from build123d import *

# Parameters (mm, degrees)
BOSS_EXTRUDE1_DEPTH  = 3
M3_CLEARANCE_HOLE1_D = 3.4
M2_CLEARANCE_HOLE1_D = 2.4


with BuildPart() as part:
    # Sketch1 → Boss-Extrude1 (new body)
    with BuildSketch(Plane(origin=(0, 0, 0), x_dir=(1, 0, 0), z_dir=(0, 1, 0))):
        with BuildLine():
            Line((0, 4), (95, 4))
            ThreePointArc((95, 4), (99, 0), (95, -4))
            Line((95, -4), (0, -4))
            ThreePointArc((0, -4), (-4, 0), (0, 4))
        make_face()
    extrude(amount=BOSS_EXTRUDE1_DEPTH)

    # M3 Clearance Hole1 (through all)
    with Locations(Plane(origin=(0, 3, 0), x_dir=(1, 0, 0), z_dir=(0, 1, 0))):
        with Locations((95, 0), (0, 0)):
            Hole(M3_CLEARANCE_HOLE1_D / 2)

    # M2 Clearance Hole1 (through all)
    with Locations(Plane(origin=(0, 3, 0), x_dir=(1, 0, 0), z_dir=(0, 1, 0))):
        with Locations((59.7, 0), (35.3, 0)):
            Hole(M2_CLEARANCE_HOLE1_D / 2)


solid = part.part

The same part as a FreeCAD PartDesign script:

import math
import FreeCAD as App
import Part
import Sketcher
from FreeCAD import Vector

doc = App.newDocument("Part")
params = doc.addObject("Spreadsheet::Sheet", "Params")
for row, (alias, value) in enumerate([
    ("sketch1_radius", "4 mm"),
    ("sketch1_width", "95 mm"),
    ("pad1_length", "3 mm"),
    ("sketch2_diameter", "3.4 mm"),
    ("hole_diameter", "3.4 mm"),
    ("sketch3_diameter", "2.4 mm"),
    ("hole2_diameter", "2.4 mm"),
], start=1):
    params.set(f"A{row}", alias)
    params.set(f"B{row}", "=" + value)
    params.setAlias(f"B{row}", alias)

body = doc.addObject("PartDesign::Body", "Body")

sketch1 = body.newObject("Sketcher::SketchObject", "Sketch")
sketch1.AttachmentSupport = (doc.getObject("XZ_Plane"), [""])
sketch1.MapMode = "FlatFace"
sketch1.addGeometry(Part.LineSegment(Vector(95, -4, 0), Vector(0, -4, 0)), False)
sketch1.addGeometry(Part.ArcOfCircle(Part.Circle(Vector(0, 0, 0), Vector(0, 0, 1), 4), math.radians(90), math.radians(270)), False)
sketch1.addGeometry(Part.LineSegment(Vector(0, 4, 0), Vector(95, 4, 0)), False)
sketch1.addGeometry(Part.ArcOfCircle(Part.Circle(Vector(95, 0, 0), Vector(0, 0, 1), 4), math.radians(-90), math.radians(90)), False)
sketch1.addConstraint(Sketcher.Constraint("Tangent", 0, 2, 1, 2))
sketch1.addConstraint(Sketcher.Constraint("Tangent", 1, 1, 2, 1))
sketch1.addConstraint(Sketcher.Constraint("Tangent", 2, 2, 3, 2))
sketch1.addConstraint(Sketcher.Constraint("Tangent", 3, 1, 0, 1))
sketch1.addConstraint(Sketcher.Constraint("Horizontal", 0))
sketch1.addConstraint(Sketcher.Constraint("Horizontal", 2))
sketch1.addConstraint(Sketcher.Constraint("Coincident", 1, 3, -1, 1))
sketch1.addConstraint(Sketcher.Constraint("Radius", 1, 4.0))
sketch1.addConstraint(Sketcher.Constraint("DistanceX", 0, 2, 0, 1, 95.0))
sketch1.setExpression("Constraints[7]", "Params.sketch1_radius")
sketch1.setExpression("Constraints[8]", "Params.sketch1_width")
pad1 = body.newObject("PartDesign::Pad", "Pad")
pad1.Profile = sketch1
pad1.setExpression("Length", "Params.pad1_length")
pad1.Reversed = True

sketch2 = body.newObject("Sketcher::SketchObject", "Sketch001")
sketch2.AttachmentSupport = (doc.getObject("XZ_Plane"), [""])
sketch2.MapMode = "FlatFace"
sketch2.AttachmentOffset = App.Placement(Vector(0, 0, -3), App.Rotation())
sketch2.addGeometry(Part.Circle(Vector(95, 0, 0), Vector(0, 0, 1), 1.7), False)
sketch2.addGeometry(Part.Circle(Vector(0, 0, 0), Vector(0, 0, 1), 1.7), False)
sketch2.addConstraint(Sketcher.Constraint("Coincident", 1, 3, -1, 1))
sketch2.addConstraint(Sketcher.Constraint("Equal", 0, 1))
sketch2.addConstraint(Sketcher.Constraint("PointOnObject", 0, 3, -1))
sketch2.addConstraint(Sketcher.Constraint("Diameter", 0, 3.4))
sketch2.addConstraint(Sketcher.Constraint("DistanceX", -1, 1, 0, 3, 95.0))
sketch2.setExpression("Constraints[3]", "Params.sketch2_diameter")
doc.recompute()
hole = body.newObject("PartDesign::Hole", "Hole")
hole.Profile = sketch2
hole.ThreadType = "None"
hole.setExpression("Diameter", "Params.hole_diameter")
hole.DepthType = "ThroughAll"
hole.Reversed = True

sketch3 = body.newObject("Sketcher::SketchObject", "Sketch002")
sketch3.AttachmentSupport = (doc.getObject("XZ_Plane"), [""])
sketch3.MapMode = "FlatFace"
sketch3.AttachmentOffset = App.Placement(Vector(0, 0, -3), App.Rotation())
sketch3.addGeometry(Part.Circle(Vector(59.7, 0, 0), Vector(0, 0, 1), 1.2), False)
sketch3.addGeometry(Part.Circle(Vector(35.3, 0, 0), Vector(0, 0, 1), 1.2), False)
sketch3.addConstraint(Sketcher.Constraint("Equal", 0, 1))
sketch3.addConstraint(Sketcher.Constraint("PointOnObject", 0, 3, -1))
sketch3.addConstraint(Sketcher.Constraint("PointOnObject", 1, 3, -1))
sketch3.addConstraint(Sketcher.Constraint("Diameter", 0, 2.4))
sketch3.addConstraint(Sketcher.Constraint("DistanceX", -1, 1, 0, 3, 59.7))
sketch3.addConstraint(Sketcher.Constraint("DistanceX", -1, 1, 1, 3, 35.3))
sketch3.setExpression("Constraints[3]", "Params.sketch3_diameter")
doc.recompute()
hole2 = body.newObject("PartDesign::Hole", "Hole001")
hole2.Profile = sketch3
hole2.ThreadType = "None"
hole2.setExpression("Diameter", "Params.hole2_diameter")
hole2.DepthType = "ThroughAll"
hole2.Reversed = True

doc.recompute()
